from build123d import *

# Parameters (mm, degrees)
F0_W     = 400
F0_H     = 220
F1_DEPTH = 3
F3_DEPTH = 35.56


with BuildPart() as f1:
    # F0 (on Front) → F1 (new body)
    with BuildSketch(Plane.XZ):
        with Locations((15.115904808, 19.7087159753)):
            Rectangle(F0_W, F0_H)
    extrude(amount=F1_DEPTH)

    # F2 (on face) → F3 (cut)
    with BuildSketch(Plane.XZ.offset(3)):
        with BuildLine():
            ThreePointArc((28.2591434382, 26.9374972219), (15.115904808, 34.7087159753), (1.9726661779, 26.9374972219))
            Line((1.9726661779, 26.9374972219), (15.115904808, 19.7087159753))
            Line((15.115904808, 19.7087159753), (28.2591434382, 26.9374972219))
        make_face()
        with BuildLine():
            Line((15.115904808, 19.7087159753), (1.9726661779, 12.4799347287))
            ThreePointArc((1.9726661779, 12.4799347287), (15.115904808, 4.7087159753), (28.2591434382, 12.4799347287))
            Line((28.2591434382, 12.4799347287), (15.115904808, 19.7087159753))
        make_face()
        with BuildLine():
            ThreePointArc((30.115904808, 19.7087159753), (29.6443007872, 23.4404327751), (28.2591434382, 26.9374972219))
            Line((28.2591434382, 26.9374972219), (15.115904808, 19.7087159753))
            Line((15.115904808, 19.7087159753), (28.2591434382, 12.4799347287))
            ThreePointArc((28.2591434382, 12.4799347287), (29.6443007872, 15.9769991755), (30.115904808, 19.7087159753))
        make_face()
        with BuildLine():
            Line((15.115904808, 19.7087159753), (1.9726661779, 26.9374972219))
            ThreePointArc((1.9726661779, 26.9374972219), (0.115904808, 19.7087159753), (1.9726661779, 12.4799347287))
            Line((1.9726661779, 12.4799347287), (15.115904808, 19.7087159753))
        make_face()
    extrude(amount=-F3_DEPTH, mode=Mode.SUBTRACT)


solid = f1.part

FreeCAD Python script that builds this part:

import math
import FreeCAD as App
import Part
import Sketcher

V = App.Vector

doc = App.newDocument("Part")
params = doc.addObject("Spreadsheet::Sheet", "Params")
for row, (alias, value) in enumerate([
    ("sketch1_width", "400 mm"),
    ("sketch1_height", "220 mm"),
    ("pad1_length", "3 mm"),
    ("sketch2_radius", "15 mm"),
    ("pocket1_length", "35.56 mm"),
], start=1):
    params.set(f"A{row}", alias)
    params.set(f"B{row}", "=" + value)
    params.setAlias(f"B{row}", alias)

body = doc.addObject("PartDesign::Body", "Body")

sketch1 = body.newObject("Sketcher::SketchObject", "Sketch")
sketch1.AttachmentSupport = (doc.getObject("XZ_Plane"), [""])
sketch1.MapMode = "FlatFace"
sketch1.addGeometry(Part.LineSegment(V(-184.884095, 129.708716, 0), V(-184.884095, -90.291284, 0)), False)
sketch1.addGeometry(Part.LineSegment(V(-184.884095, -90.291284, 0), V(215.115905, -90.291284, 0)), False)
sketch1.addGeometry(Part.LineSegment(V(215.115905, -90.291284, 0), V(215.115905, 129.708716, 0)), False)
sketch1.addGeometry(Part.LineSegment(V(215.115905, 129.708716, 0), V(-184.884095, 129.708716, 0)), False)
sketch1.addConstraint(Sketcher.Constraint("Coincident", 0, 2, 1, 1))
sketch1.addConstraint(Sketcher.Constraint("Coincident", 1, 2, 2, 1))
sketch1.addConstraint(Sketcher.Constraint("Coincident", 2, 2, 3, 1))
sketch1.addConstraint(Sketcher.Constraint("Coincident", 3, 2, 0, 1))
sketch1.addConstraint(Sketcher.Constraint("Vertical", 0))
sketch1.addConstraint(Sketcher.Constraint("Horizontal", 1))
sketch1.addConstraint(Sketcher.Constraint("Vertical", 2))
sketch1.addConstraint(Sketcher.Constraint("Horizontal", 3))
sketch1.addConstraint(Sketcher.Constraint("DistanceX", 1, 1, 1, 2, 400.0))
sketch1.addConstraint(Sketcher.Constraint("DistanceY", 0, 2, 0, 1, 220.0))
sketch1.addConstraint(Sketcher.Constraint("DistanceX", 0, 2, -1, 1, 184.884095))
sketch1.addConstraint(Sketcher.Constraint("DistanceY", 0, 2, -1, 1, 90.291284))
sketch1.setExpression("Constraints[8]", "Params.sketch1_width")
sketch1.setExpression("Constraints[9]", "Params.sketch1_height")
pad1 = body.newObject("PartDesign::Pad", "Pad")
pad1.Profile = sketch1
pad1.setExpression("Length", "Params.pad1_length")

sketch2 = body.newObject("Sketcher::SketchObject", "Sketch001")
sketch2.AttachmentSupport = (doc.getObject("XZ_Plane"), [""])
sketch2.MapMode = "FlatFace"
sketch2.AttachmentOffset = App.Placement(V(0, 0, 3), App.Rotation())
sketch2.addGeometry(Part.ArcOfCircle(Part.Circle(V(15.115905, 19.708716, 0), V(0, 0, 1), 15), math.radians(28.810794), math.radians(151.189206)), False)
sketch2.addGeometry(Part.ArcOfCircle(Part.Circle(V(15.115905, 19.708716, 0), V(0, 0, 1), 15), math.radians(151.189206), math.radians(208.810794)), False)
sketch2.addGeometry(Part.ArcOfCircle(Part.Circle(V(15.115905, 19.708716, 0), V(0, 0, 1), 15), math.radians(-151.189206), math.radians(-28.810794)), False)
sketch2.addGeometry(Part.ArcOfCircle(Part.Circle(V(15.115905, 19.708716, 0), V(0, 0, 1), 15), math.radians(-28.810794), math.radians(0)), False)
sketch2.addGeometry(Part.ArcOfCircle(Part.Circle(V(15.115905, 19.708716, 0), V(0, 0, 1), 15), math.radians(0), math.radians(28.810794)), False)
sketch2.addConstraint(Sketcher.Constraint("Tangent", 0, 2, 1, 1))
sketch2.addConstraint(Sketcher.Constraint("Tangent", 1, 2, 2, 1))
sketch2.addConstraint(Sketcher.Constraint("Tangent", 2, 2, 3, 1))
sketch2.addConstraint(Sketcher.Constraint("Tangent", 3, 2, 4, 1))
sketch2.addConstraint(Sketcher.Constraint("Tangent", 4, 2, 0, 1))
sketch2.addConstraint(Sketcher.Constraint("Coincident", 2, 3, 0, 3))
sketch2.addConstraint(Sketcher.Constraint("Horizontal", 1, 2, 2, 2))
sketch2.addConstraint(Sketcher.Constraint("Horizontal", 4, 3, 3, 2))
sketch2.addConstraint(Sketcher.Constraint("Horizontal", 0, 2, 4, 2))
sketch2.addConstraint(Sketcher.Constraint("Vertical", 0, 2, 1, 2))
sketch2.addConstraint(Sketcher.Constraint("Radius", 0, 15.0))
sketch2.addConstraint(Sketcher.Constraint("DistanceX", 0, 2, 0, 3, 13.143239))
sketch2.addConstraint(Sketcher.Constraint("DistanceX", -1, 1, 0, 3, 15.115905))
sketch2.addConstraint(Sketcher.Constraint("DistanceY", -1, 1, 0, 3, 19.708716))
sketch2.setExpression("Constraints[10]", "Params.sketch2_radius")
pocket1 = body.newObject("PartDesign::Pocket", "Pocket")
pocket1.Profile = sketch2
pocket1.setExpression("Length", "Params.pocket1_length")

doc.recompute()
